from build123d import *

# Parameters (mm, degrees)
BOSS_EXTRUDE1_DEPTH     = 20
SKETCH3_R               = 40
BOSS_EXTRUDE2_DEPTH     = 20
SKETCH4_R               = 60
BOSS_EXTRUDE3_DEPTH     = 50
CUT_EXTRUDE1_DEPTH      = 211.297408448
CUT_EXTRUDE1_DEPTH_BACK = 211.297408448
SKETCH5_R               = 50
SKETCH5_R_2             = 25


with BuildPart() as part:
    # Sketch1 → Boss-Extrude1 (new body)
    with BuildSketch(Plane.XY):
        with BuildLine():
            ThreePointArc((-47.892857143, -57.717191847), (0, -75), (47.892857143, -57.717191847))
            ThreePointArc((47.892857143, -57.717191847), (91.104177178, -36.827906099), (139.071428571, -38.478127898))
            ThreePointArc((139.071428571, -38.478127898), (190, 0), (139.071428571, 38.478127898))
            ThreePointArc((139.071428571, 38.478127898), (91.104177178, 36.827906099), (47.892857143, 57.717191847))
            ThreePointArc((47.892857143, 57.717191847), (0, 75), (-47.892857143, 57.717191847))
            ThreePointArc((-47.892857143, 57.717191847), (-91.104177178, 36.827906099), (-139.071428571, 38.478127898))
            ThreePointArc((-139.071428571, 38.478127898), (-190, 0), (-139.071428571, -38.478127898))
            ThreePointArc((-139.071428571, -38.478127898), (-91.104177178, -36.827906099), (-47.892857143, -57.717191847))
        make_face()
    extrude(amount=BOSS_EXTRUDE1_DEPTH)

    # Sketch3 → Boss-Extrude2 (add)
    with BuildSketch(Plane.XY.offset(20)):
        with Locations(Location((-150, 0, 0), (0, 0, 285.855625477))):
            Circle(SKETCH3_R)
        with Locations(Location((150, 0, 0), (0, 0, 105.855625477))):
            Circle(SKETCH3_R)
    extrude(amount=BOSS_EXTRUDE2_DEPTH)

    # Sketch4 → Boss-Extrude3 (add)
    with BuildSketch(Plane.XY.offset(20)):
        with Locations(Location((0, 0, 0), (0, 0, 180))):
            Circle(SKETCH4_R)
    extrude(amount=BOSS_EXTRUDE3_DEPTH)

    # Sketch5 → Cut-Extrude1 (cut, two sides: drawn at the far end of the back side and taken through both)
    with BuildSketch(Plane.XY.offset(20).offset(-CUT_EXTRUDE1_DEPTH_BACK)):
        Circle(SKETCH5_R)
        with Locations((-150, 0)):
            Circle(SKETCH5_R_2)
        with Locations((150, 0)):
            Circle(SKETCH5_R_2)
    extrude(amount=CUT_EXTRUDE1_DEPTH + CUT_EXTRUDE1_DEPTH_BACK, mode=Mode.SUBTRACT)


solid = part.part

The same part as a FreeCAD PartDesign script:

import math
import FreeCAD as App
import Part
import Sketcher
from FreeCAD import Vector
Q = App.Units.Quantity

doc = App.newDocument("Part")
body = doc.addObject("PartDesign::Body", "Body")

# Sketch on XY plane
sketch1 = body.newObject("Sketcher::SketchObject", "Sketch")
sketch1.AttachmentSupport = (doc.getObject("XY_Plane"), [""])
sketch1.MapMode = "FlatFace"
sketch1.addGeometry([
    Part.ArcOfCircle(Part.Circle(Vector(0, 0, 0), Vector(0, 0, 1), 75), math.radians(-129.685377), math.radians(-50.314623)),  # 0
    Part.ArcOfCircle(Part.Circle(Vector(111.75, -134.673448, 0), Vector(0, 0, 1), 100), math.radians(74.144375), math.radians(129.685377)),  # 1
    Part.ArcOfCircle(Part.Circle(Vector(150, 0, 0), Vector(0, 0, 1), 40), math.radians(-105.855625), math.radians(105.855625)),  # 2
    Part.ArcOfCircle(Part.Circle(Vector(111.75, 134.673448, 0), Vector(0, 0, 1), 100), math.radians(-129.685377), math.radians(-74.144375)),  # 3
    Part.ArcOfCircle(Part.Circle(Vector(0, 0, 0), Vector(0, 0, 1), 75), math.radians(50.314623), math.radians(129.685377)),  # 4
    Part.ArcOfCircle(Part.Circle(Vector(-111.75, 134.673448, 0), Vector(0, 0, 1), 100), math.radians(-105.855625), math.radians(-50.314623)),  # 5
    Part.ArcOfCircle(Part.Circle(Vector(-150, 0, 0), Vector(0, 0, 1), 40), math.radians(74.144375), math.radians(285.855625)),  # 6
    Part.ArcOfCircle(Part.Circle(Vector(-111.75, -134.673448, 0), Vector(0, 0, 1), 100), math.radians(50.314623), math.radians(105.855625)),  # 7
], False)
sketch1.addConstraint([
    Sketcher.Constraint("Tangent", 0, 2, 1, 2),
    Sketcher.Constraint("Tangent", 1, 1, 2, 1),
    Sketcher.Constraint("Tangent", 2, 2, 3, 2),
    Sketcher.Constraint("Tangent", 3, 1, 4, 1),
    Sketcher.Constraint("Tangent", 4, 2, 5, 2),
    Sketcher.Constraint("Tangent", 5, 1, 6, 1),
    Sketcher.Constraint("Tangent", 6, 2, 7, 2),
    Sketcher.Constraint("Tangent", 7, 1, 0, 1),
    Sketcher.Constraint("Coincident", 0, 3, -1, 1),
    Sketcher.Constraint("Coincident", 4, 3, -1, 1),
    Sketcher.Constraint("Equal", 1, 3),
    Sketcher.Constraint("Equal", 0, 4),
    Sketcher.Constraint("Equal", 3, 5),
    Sketcher.Constraint("Equal", 2, 6),
    Sketcher.Constraint("Equal", 5, 7),
    Sketcher.Constraint("Symmetric", 2, 3, 6, 3, -1, 1),
    Sketcher.Constraint("PointOnObject", 2, 3, -1),
    Sketcher.Constraint("Radius", 0, Q("75 mm")),
    Sketcher.Constraint("Radius", 1, Q("100 mm")),
    Sketcher.Constraint("Radius", 2, Q("40 mm")),
    Sketcher.Constraint("DistanceX", -1, 1, 2, 3, Q("150 mm")),
])
pad1 = body.newObject("PartDesign::Pad", "Pad")
pad1.Profile = sketch1
pad1.Length = 20

# Sketch on XY plane
sketch2 = body.newObject("Sketcher::SketchObject", "Sketch001")
sketch2.AttachmentSupport = (doc.getObject("XY_Plane"), [""])
sketch2.MapMode = "FlatFace"
sketch2.AttachmentOffset = App.Placement(Vector(0, 0, 20), App.Rotation())
sketch2.addGeometry([
    Part.Circle(Vector(-150, 0, 0), Vector(0, 0, 1), 40),
    Part.Circle(Vector(150, 0, 0), Vector(0, 0, 1), 40),
], False)
sketch2.addConstraint([
    Sketcher.Constraint("Equal", 0, 1),
    Sketcher.Constraint("Symmetric", 0, 3, 1, 3, -1, 1),
    Sketcher.Constraint("PointOnObject", 0, 3, -1),
    Sketcher.Constraint("Diameter", 0, Q("80 mm")),
    Sketcher.Constraint("DistanceX", 0, 3, -1, 1, Q("150 mm")),
])
pad2 = body.newObject("PartDesign::Pad", "Pad001")
pad2.Profile = sketch2
pad2.Length = 20

# Sketch on XY plane
sketch3 = body.newObject("Sketcher::SketchObject", "Sketch002")
sketch3.AttachmentSupport = (doc.getObject("XY_Plane"), [""])
sketch3.MapMode = "FlatFace"
sketch3.AttachmentOffset = App.Placement(Vector(0, 0, 20), App.Rotation())
sketch3.addGeometry(Part.Circle(Vector(0, 0, 0), Vector(0, 0, 1), 60), False)
sketch3.addConstraint([
    Sketcher.Constraint("Coincident", 0, 3, -1, 1),
    Sketcher.Constraint("Diameter", 0, Q("120 mm")),
])
pad3 = body.newObject("PartDesign::Pad", "Pad002")
pad3.Profile = sketch3
pad3.Length = 50

# Sketch on XY plane
sketch4 = body.newObject("Sketcher::SketchObject", "Sketch003")
sketch4.AttachmentSupport = (doc.getObject("XY_Plane"), [""])
sketch4.MapMode = "FlatFace"
sketch4.AttachmentOffset = App.Placement(Vector(0, 0, 20), App.Rotation())
sketch4.addGeometry([
    Part.Circle(Vector(0, 0, 0), Vector(0, 0, 1), 50),
    Part.Circle(Vector(-150, 0, 0), Vector(0, 0, 1), 25),
    Part.Circle(Vector(150, 0, 0), Vector(0, 0, 1), 25),
], False)
sketch4.addConstraint([
    Sketcher.Constraint("Coincident", 0, 3, -1, 1),
    Sketcher.Constraint("Equal", 1, 2),
    Sketcher.Constraint("Symmetric", 1, 3, 2, 3, -1, 1),
    Sketcher.Constraint("PointOnObject", 1, 3, -1),
    Sketcher.Constraint("Diameter", 0, Q("100 mm")),
    Sketcher.Constraint("Diameter", 1, Q("50 mm")),
    Sketcher.Constraint("DistanceX", 1, 3, -1, 1, Q("150 mm")),
])
pocket1 = body.newObject("PartDesign::Pocket", "Pocket")
pocket1.Profile = sketch4
pocket1.Type = "ThroughAll"
pocket1.Midplane = True

doc.recompute()
